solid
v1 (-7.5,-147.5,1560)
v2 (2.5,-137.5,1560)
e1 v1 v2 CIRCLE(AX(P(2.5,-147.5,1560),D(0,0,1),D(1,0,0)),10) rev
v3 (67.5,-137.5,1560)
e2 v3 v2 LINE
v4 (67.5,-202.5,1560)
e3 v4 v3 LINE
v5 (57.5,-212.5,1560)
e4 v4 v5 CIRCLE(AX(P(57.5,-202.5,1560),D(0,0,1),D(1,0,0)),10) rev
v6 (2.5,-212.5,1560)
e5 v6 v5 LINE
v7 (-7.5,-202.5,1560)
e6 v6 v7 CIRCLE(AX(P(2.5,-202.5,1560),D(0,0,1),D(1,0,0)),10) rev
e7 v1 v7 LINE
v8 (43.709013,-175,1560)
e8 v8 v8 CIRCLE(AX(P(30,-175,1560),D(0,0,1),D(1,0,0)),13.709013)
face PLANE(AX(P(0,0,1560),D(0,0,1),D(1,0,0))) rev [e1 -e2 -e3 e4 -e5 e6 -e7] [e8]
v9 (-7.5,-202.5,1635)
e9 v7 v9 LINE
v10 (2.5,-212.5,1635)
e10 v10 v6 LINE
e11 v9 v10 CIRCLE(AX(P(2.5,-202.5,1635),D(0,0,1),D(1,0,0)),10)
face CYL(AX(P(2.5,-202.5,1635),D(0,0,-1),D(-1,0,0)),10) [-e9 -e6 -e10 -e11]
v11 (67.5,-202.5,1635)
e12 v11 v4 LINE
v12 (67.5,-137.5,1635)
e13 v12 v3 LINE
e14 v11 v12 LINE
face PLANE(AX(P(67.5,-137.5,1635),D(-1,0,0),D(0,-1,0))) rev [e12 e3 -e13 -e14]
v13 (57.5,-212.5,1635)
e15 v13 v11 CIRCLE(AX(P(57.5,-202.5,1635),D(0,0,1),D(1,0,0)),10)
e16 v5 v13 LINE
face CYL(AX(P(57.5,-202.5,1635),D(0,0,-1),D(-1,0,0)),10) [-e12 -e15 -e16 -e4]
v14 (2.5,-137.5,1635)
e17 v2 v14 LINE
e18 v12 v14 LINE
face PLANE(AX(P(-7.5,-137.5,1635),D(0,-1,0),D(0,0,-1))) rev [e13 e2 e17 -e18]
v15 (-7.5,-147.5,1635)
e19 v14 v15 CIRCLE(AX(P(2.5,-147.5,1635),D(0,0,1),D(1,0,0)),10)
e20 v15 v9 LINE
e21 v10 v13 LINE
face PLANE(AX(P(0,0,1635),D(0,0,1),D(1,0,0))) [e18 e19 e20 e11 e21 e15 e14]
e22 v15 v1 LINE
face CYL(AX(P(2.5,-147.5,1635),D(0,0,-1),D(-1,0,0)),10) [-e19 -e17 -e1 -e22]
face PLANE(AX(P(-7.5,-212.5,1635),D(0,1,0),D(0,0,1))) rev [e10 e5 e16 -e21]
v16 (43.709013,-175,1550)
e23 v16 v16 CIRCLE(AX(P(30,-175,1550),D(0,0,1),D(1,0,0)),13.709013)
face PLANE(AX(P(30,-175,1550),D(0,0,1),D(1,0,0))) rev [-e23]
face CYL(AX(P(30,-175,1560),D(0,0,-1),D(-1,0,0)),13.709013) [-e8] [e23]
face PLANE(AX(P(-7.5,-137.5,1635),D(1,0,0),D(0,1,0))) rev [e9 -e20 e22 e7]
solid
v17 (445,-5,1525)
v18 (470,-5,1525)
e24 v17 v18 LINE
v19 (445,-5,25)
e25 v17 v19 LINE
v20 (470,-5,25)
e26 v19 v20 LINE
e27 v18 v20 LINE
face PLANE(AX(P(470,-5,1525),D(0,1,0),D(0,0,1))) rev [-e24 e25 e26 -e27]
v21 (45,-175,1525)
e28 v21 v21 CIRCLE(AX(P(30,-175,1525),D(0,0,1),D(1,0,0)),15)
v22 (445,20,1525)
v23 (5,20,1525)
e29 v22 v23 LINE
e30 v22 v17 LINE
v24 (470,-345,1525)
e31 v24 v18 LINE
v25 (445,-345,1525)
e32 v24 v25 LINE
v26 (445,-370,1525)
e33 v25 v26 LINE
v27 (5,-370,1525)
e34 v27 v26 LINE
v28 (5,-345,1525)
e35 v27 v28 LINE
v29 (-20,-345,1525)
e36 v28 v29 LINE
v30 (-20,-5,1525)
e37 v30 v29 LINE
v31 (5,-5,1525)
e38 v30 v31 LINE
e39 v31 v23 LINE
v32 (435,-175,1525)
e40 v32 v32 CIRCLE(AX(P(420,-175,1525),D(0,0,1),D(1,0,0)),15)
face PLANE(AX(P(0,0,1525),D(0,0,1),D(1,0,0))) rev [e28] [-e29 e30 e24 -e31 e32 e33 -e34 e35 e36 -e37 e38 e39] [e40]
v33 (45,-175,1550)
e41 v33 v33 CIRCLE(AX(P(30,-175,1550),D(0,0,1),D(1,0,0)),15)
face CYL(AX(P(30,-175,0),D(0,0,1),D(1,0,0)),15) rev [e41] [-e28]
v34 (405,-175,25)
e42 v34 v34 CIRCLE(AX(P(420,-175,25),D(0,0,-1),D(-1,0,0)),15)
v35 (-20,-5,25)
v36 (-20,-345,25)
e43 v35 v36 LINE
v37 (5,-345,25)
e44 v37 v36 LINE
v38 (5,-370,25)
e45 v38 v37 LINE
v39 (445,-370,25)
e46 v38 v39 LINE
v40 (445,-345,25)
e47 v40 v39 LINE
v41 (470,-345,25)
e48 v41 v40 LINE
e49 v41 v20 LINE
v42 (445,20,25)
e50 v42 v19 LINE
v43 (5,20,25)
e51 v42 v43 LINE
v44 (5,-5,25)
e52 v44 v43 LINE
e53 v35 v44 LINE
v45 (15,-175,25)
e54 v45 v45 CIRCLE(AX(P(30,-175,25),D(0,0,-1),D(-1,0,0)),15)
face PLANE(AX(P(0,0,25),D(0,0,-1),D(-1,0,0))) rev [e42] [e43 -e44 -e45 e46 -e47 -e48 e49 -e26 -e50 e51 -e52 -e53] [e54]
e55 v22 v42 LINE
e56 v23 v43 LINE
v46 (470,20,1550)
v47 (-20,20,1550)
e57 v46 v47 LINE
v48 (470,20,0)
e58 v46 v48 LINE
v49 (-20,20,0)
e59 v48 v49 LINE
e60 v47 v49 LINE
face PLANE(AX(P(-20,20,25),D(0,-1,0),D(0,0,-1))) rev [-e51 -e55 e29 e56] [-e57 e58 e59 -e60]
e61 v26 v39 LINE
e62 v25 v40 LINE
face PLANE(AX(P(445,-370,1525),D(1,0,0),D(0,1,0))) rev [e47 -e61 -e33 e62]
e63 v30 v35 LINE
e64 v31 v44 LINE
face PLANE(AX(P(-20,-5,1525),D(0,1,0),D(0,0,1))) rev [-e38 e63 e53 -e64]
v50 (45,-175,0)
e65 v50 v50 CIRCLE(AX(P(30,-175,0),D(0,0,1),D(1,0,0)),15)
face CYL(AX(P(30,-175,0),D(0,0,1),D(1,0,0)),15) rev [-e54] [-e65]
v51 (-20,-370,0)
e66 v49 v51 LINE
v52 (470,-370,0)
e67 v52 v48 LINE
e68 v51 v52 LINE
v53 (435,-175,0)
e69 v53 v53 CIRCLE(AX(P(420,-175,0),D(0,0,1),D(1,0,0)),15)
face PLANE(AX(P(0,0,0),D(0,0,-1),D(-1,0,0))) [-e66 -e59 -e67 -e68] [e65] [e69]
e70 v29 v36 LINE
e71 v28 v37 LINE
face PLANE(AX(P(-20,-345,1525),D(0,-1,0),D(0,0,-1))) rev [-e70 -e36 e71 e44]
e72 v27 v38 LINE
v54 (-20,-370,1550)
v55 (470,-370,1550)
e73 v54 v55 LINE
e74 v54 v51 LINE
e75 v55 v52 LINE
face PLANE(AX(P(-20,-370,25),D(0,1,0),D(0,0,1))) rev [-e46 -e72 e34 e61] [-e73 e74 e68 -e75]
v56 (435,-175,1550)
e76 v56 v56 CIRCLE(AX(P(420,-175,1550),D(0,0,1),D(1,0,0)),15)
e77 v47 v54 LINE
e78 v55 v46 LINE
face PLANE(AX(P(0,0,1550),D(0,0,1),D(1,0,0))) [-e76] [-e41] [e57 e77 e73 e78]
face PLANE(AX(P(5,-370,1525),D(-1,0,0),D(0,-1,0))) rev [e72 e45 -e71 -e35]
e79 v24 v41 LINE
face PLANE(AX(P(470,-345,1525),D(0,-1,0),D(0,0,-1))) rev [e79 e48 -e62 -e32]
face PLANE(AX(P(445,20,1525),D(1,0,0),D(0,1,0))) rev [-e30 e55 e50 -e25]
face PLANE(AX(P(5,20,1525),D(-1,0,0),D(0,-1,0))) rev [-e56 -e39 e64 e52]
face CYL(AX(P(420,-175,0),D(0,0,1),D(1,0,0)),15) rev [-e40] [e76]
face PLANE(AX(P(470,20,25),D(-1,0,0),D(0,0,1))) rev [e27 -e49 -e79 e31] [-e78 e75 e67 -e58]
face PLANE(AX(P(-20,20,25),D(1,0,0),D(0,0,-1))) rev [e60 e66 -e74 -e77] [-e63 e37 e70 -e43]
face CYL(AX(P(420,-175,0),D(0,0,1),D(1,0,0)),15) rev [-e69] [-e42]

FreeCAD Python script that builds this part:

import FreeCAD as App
import Part
import Sketcher
from FreeCAD import Vector


def edges_at(feature, points):
    """Names of the edges that pass closest to the given points."""
    edges = feature.Shape.Edges
    near = lambda p: min(range(len(edges)), key=lambda i: edges[i].distToShape(Part.Vertex(*p))[0])
    return sorted({f"Edge{near(p) + 1}" for p in points})

doc = App.newDocument("Part")
body = doc.addObject("PartDesign::Body", "Body")

# Sketch on XY plane
sketch1 = body.newObject("Sketcher::SketchObject", "Sketch")
sketch1.AttachmentSupport = (doc.getObject("XY_Plane"), [""])
sketch1.MapMode = "FlatFace"
sketch1.addGeometry(Part.LineSegment(Vector(-20, 20, 0), Vector(-20, -370, 0)), False)
sketch1.addGeometry(Part.LineSegment(Vector(-20, -370, 0), Vector(470, -370, 0)), False)
sketch1.addGeometry(Part.LineSegment(Vector(470, -370, 0), Vector(470, 20, 0)), False)
sketch1.addGeometry(Part.LineSegment(Vector(470, 20, 0), Vector(-20, 20, 0)), False)
sketch1.addConstraint(Sketcher.Constraint("Coincident", 0, 2, 1, 1))
sketch1.addConstraint(Sketcher.Constraint("Coincident", 1, 2, 2, 1))
sketch1.addConstraint(Sketcher.Constraint("Coincident", 2, 2, 3, 1))
sketch1.addConstraint(Sketcher.Constraint("Coincident", 3, 2, 0, 1))
sketch1.addConstraint(Sketcher.Constraint("Vertical", 0))
sketch1.addConstraint(Sketcher.Constraint("Horizontal", 1))
sketch1.addConstraint(Sketcher.Constraint("Vertical", 2))
sketch1.addConstraint(Sketcher.Constraint("Horizontal", 3))
sketch1.addConstraint(Sketcher.Constraint("DistanceX", 1, 1, 1, 2, 490.0))
sketch1.addConstraint(Sketcher.Constraint("DistanceY", 0, 2, 0, 1, 390.0))
sketch1.addConstraint(Sketcher.Constraint("DistanceX", 0, 2, -1, 1, 20.0))
sketch1.addConstraint(Sketcher.Constraint("DistanceY", 0, 2, -1, 1, 370.0))
pad1 = body.newObject("PartDesign::Pad", "Pad")
pad1.Profile = sketch1
pad1.Length = 25

# Sketch on XY plane
sketch2 = body.newObject("Sketcher::SketchObject", "Sketch001")
sketch2.AttachmentSupport = (doc.getObject("XY_Plane"), [""])
sketch2.MapMode = "FlatFace"
sketch2.AttachmentOffset = App.Placement(Vector(0, 0, 25), App.Rotation())
sketch2.addGeometry(Part.LineSegment(Vector(-20, 20, 0), Vector(-20, -5, 0)), False)
sketch2.addGeometry(Part.LineSegment(Vector(-20, -5, 0), Vector(5, -5, 0)), False)
sketch2.addGeometry(Part.LineSegment(Vector(5, -5, 0), Vector(5, 20, 0)), False)
sketch2.addGeometry(Part.LineSegment(Vector(5, 20, 0), Vector(-20, 20, 0)), False)
sketch2.addGeometry(Part.LineSegment(Vector(445, 20, 0), Vector(445, -5, 0)), False)
sketch2.addGeometry(Part.LineSegment(Vector(445, -5, 0), Vector(470, -5, 0)), False)
sketch2.addGeometry(Part.LineSegment(Vector(470, -5, 0), Vector(470, 20, 0)), False)
sketch2.addGeometry(Part.LineSegment(Vector(470, 20, 0), Vector(445, 20, 0)), False)
sketch2.addGeometry(Part.LineSegment(Vector(445, -345, 0), Vector(445, -370, 0)), False)
sketch2.addGeometry(Part.LineSegment(Vector(445, -370, 0), Vector(470, -370, 0)), False)
sketch2.addGeometry(Part.LineSegment(Vector(470, -370, 0), Vector(470, -345, 0)), False)
sketch2.addGeometry(Part.LineSegment(Vector(470, -345, 0), Vector(445, -345, 0)), False)
sketch2.addGeometry(Part.LineSegment(Vector(-20, -345, 0), Vector(-20, -370, 0)), False)
sketch2.addGeometry(Part.LineSegment(Vector(-20, -370, 0), Vector(5, -370, 0)), False)
sketch2.addGeometry(Part.LineSegment(Vector(5, -370, 0), Vector(5, -345, 0)), False)
sketch2.addGeometry(Part.LineSegment(Vector(5, -345, 0), Vector(-20, -345, 0)), False)
sketch2.addConstraint(Sketcher.Constraint("Coincident", 0, 2, 1, 1))
sketch2.addConstraint(Sketcher.Constraint("Coincident", 1, 2, 2, 1))
sketch2.addConstraint(Sketcher.Constraint("Coincident", 2, 2, 3, 1))
sketch2.addConstraint(Sketcher.Constraint("Coincident", 3, 2, 0, 1))
sketch2.addConstraint(Sketcher.Constraint("Coincident", 4, 2, 5, 1))
sketch2.addConstraint(Sketcher.Constraint("Coincident", 5, 2, 6, 1))
sketch2.addConstraint(Sketcher.Constraint("Coincident", 6, 2, 7, 1))
sketch2.addConstraint(Sketcher.Constraint("Coincident", 7, 2, 4, 1))
sketch2.addConstraint(Sketcher.Constraint("Coincident", 8, 2, 9, 1))
sketch2.addConstraint(Sketcher.Constraint("Coincident", 9, 2, 10, 1))
sketch2.addConstraint(Sketcher.Constraint("Coincident", 10, 2, 11, 1))
sketch2.addConstraint(Sketcher.Constraint("Coincident", 11, 2, 8, 1))
sketch2.addConstraint(Sketcher.Constraint("Coincident", 12, 2, 13, 1))
sketch2.addConstraint(Sketcher.Constraint("Coincident", 13, 2, 14, 1))
sketch2.addConstraint(Sketcher.Constraint("Coincident", 14, 2, 15, 1))
sketch2.addConstraint(Sketcher.Constraint("Coincident", 15, 2, 12, 1))
sketch2.addConstraint(Sketcher.Constraint("Vertical", 0))
sketch2.addConstraint(Sketcher.Constraint("Horizontal", 1))
sketch2.addConstraint(Sketcher.Constraint("Vertical", 2))
sketch2.addConstraint(Sketcher.Constraint("Horizontal", 3))
sketch2.addConstraint(Sketcher.Constraint("Vertical", 4))
sketch2.addConstraint(Sketcher.Constraint("Horizontal", 5))
sketch2.addConstraint(Sketcher.Constraint("Vertical", 6))
sketch2.addConstraint(Sketcher.Constraint("Horizontal", 7))
sketch2.addConstraint(Sketcher.Constraint("Vertical", 8))
sketch2.addConstraint(Sketcher.Constraint("Horizontal", 9))
sketch2.addConstraint(Sketcher.Constraint("Vertical", 10))
sketch2.addConstraint(Sketcher.Constraint("Horizontal", 11))
sketch2.addConstraint(Sketcher.Constraint("Vertical", 12))
sketch2.addConstraint(Sketcher.Constraint("Horizontal", 13))
sketch2.addConstraint(Sketcher.Constraint("Vertical", 14))
sketch2.addConstraint(Sketcher.Constraint("Horizontal", 15))
sketch2.addConstraint(Sketcher.Constraint("Horizontal", 1, 2, 4, 2))
sketch2.addConstraint(Sketcher.Constraint("Horizontal", 3, 2, 6, 2))
sketch2.addConstraint(Sketcher.Constraint("Horizontal", 9, 2, 12, 2))
sketch2.addConstraint(Sketcher.Constraint("Horizontal", 11, 2, 14, 2))
sketch2.addConstraint(Sketcher.Constraint("Vertical", 7, 2, 8, 2))
sketch2.addConstraint(Sketcher.Constraint("Vertical", 6, 2, 9, 2))
sketch2.addConstraint(Sketcher.Constraint("Vertical", 3, 2, 12, 2))
sketch2.addConstraint(Sketcher.Constraint("Vertical", 2, 2, 13, 2))
sketch2.addConstraint(Sketcher.Constraint("Equal", 3, 5))
sketch2.addConstraint(Sketcher.Constraint("Equal", 15, 0))
sketch2.addConstraint(Sketcher.Constraint("Equal", 6, 8))
sketch2.addConstraint(Sketcher.Constraint("DistanceX", 1, 1, 1, 2, 25.0))
sketch2.addConstraint(Sketcher.Constraint("DistanceX", 0, 2, -1, 1, 20.0))
sketch2.addConstraint(Sketcher.Constraint("DistanceY", 0, 2, -1, 1, 5.0))
sketch2.addConstraint(Sketcher.Constraint("DistanceX", -1, 1, 4, 2, 445.0))
sketch2.addConstraint(Sketcher.Constraint("DistanceY", 8, 2, -1, 1, 370.0))
pad2 = body.newObject("PartDesign::Pad", "Pad001")
pad2.Profile = sketch2
pad2.Length = 1500

# Sketch on XY plane
sketch3 = body.newObject("Sketcher::SketchObject", "Sketch002")
sketch3.AttachmentSupport = (doc.getObject("XY_Plane"), [""])
sketch3.MapMode = "FlatFace"
sketch3.AttachmentOffset = App.Placement(Vector(0, 0, 1525), App.Rotation())
sketch3.addGeometry(Part.LineSegment(Vector(-20, 20, 0), Vector(-20, -370, 0)), False)
sketch3.addGeometry(Part.LineSegment(Vector(-20, -370, 0), Vector(470, -370, 0)), False)
sketch3.addGeometry(Part.LineSegment(Vector(470, -370, 0), Vector(470, 20, 0)), False)
sketch3.addGeometry(Part.LineSegment(Vector(470, 20, 0), Vector(-20, 20, 0)), False)
sketch3.addConstraint(Sketcher.Constraint("Coincident", 0, 2, 1, 1))
sketch3.addConstraint(Sketcher.Constraint("Coincident", 1, 2, 2, 1))
sketch3.addConstraint(Sketcher.Constraint("Coincident", 2, 2, 3, 1))
sketch3.addConstraint(Sketcher.Constraint("Coincident", 3, 2, 0, 1))
sketch3.addConstraint(Sketcher.Constraint("Vertical", 0))
sketch3.addConstraint(Sketcher.Constraint("Horizontal", 1))
sketch3.addConstraint(Sketcher.Constraint("Vertical", 2))
sketch3.addConstraint(Sketcher.Constraint("Horizontal", 3))
sketch3.addConstraint(Sketcher.Constraint("DistanceX", 1, 1, 1, 2, 490.0))
sketch3.addConstraint(Sketcher.Constraint("DistanceY", 0, 2, 0, 1, 390.0))
sketch3.addConstraint(Sketcher.Constraint("DistanceX", 0, 2, -1, 1, 20.0))
sketch3.addConstraint(Sketcher.Constraint("DistanceY", 0, 2, -1, 1, 370.0))
pad3 = body.newObject("PartDesign::Pad", "Pad002")
pad3.Profile = sketch3
pad3.Length = 25

# Sketch on XY plane
sketch4 = body.newObject("Sketcher::SketchObject", "Sketch003")
sketch4.AttachmentSupport = (doc.getObject("XY_Plane"), [""])
sketch4.MapMode = "FlatFace"
sketch4.AttachmentOffset = App.Placement(Vector(0, 0, 1550), App.Rotation())
sketch4.addGeometry(Part.Circle(Vector(420, -175, 0), Vector(0, 0, 1), 15), False)
sketch4.addGeometry(Part.Circle(Vector(30, -175, 0), Vector(0, 0, 1), 15), False)
sketch4.addConstraint(Sketcher.Constraint("Equal", 0, 1))
sketch4.addConstraint(Sketcher.Constraint("Horizontal", 0, 3, 1, 3))
sketch4.addConstraint(Sketcher.Constraint("Diameter", 0, 30.0))
sketch4.addConstraint(Sketcher.Constraint("DistanceX", -1, 1, 0, 3, 420.0))
sketch4.addConstraint(Sketcher.Constraint("DistanceY", 0, 3, -1, 1, 175.0))
sketch4.addConstraint(Sketcher.Constraint("DistanceX", -1, 1, 1, 3, 30.0))
pocket1 = body.newObject("PartDesign::Pocket", "Pocket")
pocket1.Profile = sketch4
pocket1.Length = 1550
body2 = doc.addObject("PartDesign::Body", "Body001")

# Sketch on XY plane
sketch5 = body2.newObject("Sketcher::SketchObject", "Sketch004")
sketch5.AttachmentSupport = (doc.getObject("XY_Plane001"), [""])
sketch5.MapMode = "FlatFace"
sketch5.AttachmentOffset = App.Placement(Vector(0, 0, 1550), App.Rotation())
sketch5.addGeometry(Part.Circle(Vector(30, -175, 0), Vector(0, 0, 1), 13.709013), False)
sketch5.addConstraint(Sketcher.Constraint("DistanceX", -1, 1, 0, 3, 30.0))
sketch5.addConstraint(Sketcher.Constraint("DistanceY", 0, 3, -1, 1, 175.0))
sketch5.addConstraint(Sketcher.Constraint("Diameter", 0, 27.418026))
pad4 = body2.newObject("PartDesign::Pad", "Pad003")
pad4.Profile = sketch5
pad4.Length = 10

# Sketch on XY plane
sketch6 = body2.newObject("Sketcher::SketchObject", "Sketch005")
sketch6.AttachmentSupport = (doc.getObject("XY_Plane001"), [""])
sketch6.MapMode = "FlatFace"
sketch6.AttachmentOffset = App.Placement(Vector(0, 0, 1560), App.Rotation())
sketch6.addGeometry(Part.LineSegment(Vector(-7.5, -137.5, 0), Vector(-7.5, -212.5, 0)), False)
sketch6.addGeometry(Part.LineSegment(Vector(-7.5, -212.5, 0), Vector(67.5, -212.5, 0)), False)
sketch6.addGeometry(Part.LineSegment(Vector(67.5, -212.5, 0), Vector(67.5, -137.5, 0)), False)
sketch6.addGeometry(Part.LineSegment(Vector(67.5, -137.5, 0), Vector(-7.5, -137.5, 0)), False)
sketch6.addConstraint(Sketcher.Constraint("Coincident", 0, 2, 1, 1))
sketch6.addConstraint(Sketcher.Constraint("Coincident", 1, 2, 2, 1))
sketch6.addConstraint(Sketcher.Constraint("Coincident", 2, 2, 3, 1))
sketch6.addConstraint(Sketcher.Constraint("Coincident", 3, 2, 0, 1))
sketch6.addConstraint(Sketcher.Constraint("Vertical", 0))
sketch6.addConstraint(Sketcher.Constraint("Horizontal", 1))
sketch6.addConstraint(Sketcher.Constraint("Vertical", 2))
sketch6.addConstraint(Sketcher.Constraint("Horizontal", 3))
sketch6.addConstraint(Sketcher.Constraint("Equal", 3, 0))
sketch6.addConstraint(Sketcher.Constraint("DistanceX", 1, 1, 1, 2, 75.0))
sketch6.addConstraint(Sketcher.Constraint("DistanceX", 0, 2, -1, 1, 7.5))
sketch6.addConstraint(Sketcher.Constraint("DistanceY", 0, 2, -1, 1, 212.5))
pad5 = body2.newObject("PartDesign::Pad", "Pad004")
pad5.Profile = sketch6
pad5.Length = 75
doc.recompute()

fillet = body2.newObject("PartDesign::Fillet", "Fillet")
fillet.Base = (pad5, edges_at(pad5, [(67.5, -212.5, 1597.5), (-7.5, -137.5, 1597.5), (-7.5, -212.5, 1597.5)]))
fillet.Radius = 10

doc.recompute()
